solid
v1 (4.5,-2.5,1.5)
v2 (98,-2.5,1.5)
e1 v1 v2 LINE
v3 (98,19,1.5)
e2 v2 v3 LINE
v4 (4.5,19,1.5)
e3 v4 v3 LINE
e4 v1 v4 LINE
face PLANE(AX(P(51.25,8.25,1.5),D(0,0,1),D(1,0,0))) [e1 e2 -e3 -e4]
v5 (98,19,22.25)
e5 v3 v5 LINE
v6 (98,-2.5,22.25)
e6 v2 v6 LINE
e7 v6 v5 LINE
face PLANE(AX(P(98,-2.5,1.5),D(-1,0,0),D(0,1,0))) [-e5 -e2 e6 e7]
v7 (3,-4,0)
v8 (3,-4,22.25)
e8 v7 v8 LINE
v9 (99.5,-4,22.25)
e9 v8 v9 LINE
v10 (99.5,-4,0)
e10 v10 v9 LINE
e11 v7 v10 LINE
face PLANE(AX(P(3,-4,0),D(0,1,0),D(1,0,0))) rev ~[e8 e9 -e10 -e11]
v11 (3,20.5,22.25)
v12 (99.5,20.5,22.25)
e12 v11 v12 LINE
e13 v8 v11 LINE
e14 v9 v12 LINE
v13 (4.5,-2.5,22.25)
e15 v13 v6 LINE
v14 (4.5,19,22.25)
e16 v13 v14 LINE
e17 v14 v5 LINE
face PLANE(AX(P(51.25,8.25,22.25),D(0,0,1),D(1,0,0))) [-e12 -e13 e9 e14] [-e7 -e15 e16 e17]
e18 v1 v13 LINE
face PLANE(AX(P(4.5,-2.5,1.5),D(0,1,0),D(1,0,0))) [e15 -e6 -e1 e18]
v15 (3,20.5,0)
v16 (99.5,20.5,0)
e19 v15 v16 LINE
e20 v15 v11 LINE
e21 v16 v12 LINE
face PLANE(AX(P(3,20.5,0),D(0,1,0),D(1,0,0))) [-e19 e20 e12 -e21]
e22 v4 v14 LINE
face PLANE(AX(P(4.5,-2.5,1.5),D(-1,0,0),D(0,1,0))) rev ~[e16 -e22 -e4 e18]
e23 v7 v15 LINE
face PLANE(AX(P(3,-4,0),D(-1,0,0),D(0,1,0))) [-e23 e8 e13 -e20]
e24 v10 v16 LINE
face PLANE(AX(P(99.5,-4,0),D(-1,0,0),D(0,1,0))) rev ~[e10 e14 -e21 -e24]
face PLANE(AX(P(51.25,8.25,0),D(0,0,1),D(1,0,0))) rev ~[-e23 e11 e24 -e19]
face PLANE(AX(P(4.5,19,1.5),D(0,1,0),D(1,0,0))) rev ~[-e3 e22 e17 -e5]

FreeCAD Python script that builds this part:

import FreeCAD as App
import Part
import Sketcher

V = App.Vector

doc = App.newDocument("Part")
body = doc.addObject("PartDesign::Body", "Body")

# Sketch on XY plane
sketch1 = body.newObject("Sketcher::SketchObject", "Sketch")
sketch1.AttachmentSupport = (doc.getObject("XY_Plane"), [""])
sketch1.MapMode = "FlatFace"
sketch1.AttachmentOffset = App.Placement(V(0, 0, 1.5), App.Rotation())
sketch1.addGeometry([
    Part.LineSegment(V(2, 23, 0), V(2, 2, 0)),
    Part.LineSegment(V(2, 2, 0), V(95, 2, 0)),
    Part.LineSegment(V(95, 2, 0), V(95, 23, 0)),
    Part.LineSegment(V(95, 23, 0), V(2, 23, 0)),
], False)
sketch1.addConstraint([
    Sketcher.Constraint("Coincident", 0, 2, 1, 1),
    Sketcher.Constraint("Coincident", 1, 2, 2, 1),
    Sketcher.Constraint("Coincident", 2, 2, 3, 1),
    Sketcher.Constraint("Coincident", 3, 2, 0, 1),
    Sketcher.Constraint("Vertical", 0),
    Sketcher.Constraint("Horizontal", 1),
    Sketcher.Constraint("Vertical", 2),
    Sketcher.Constraint("Horizontal", 3),
    Sketcher.Constraint("DistanceX", 1, 1, 1, 2, 93.5),
    Sketcher.Constraint("DistanceY", 0, 2, 0, 1, 21.5),
    Sketcher.Constraint("DistanceX", -1, 1, 1, 2, 95.0),
    Sketcher.Constraint("DistanceY", -1, 1, 2, 2, 23.0),
])
pad1 = body.newObject("PartDesign::Pad", "Pad")
pad1.Profile = sketch1
pad1.Length = 20.75
body2 = doc.addObject("PartDesign::Body", "Body001")

# Sketch on XY plane
sketch2 = body2.newObject("Sketcher::SketchObject", "Sketch001")
sketch2.AttachmentSupport = (doc.getObject("XY_Plane001"), [""])
sketch2.MapMode = "FlatFace"
sketch2.addGeometry([
    Part.LineSegment(V(0, 24, 0), V(0, 0, 0)),
    Part.LineSegment(V(0, 0, 0), V(96, 0, 0)),
    Part.LineSegment(V(96, 0, 0), V(96, 24, 0)),
    Part.LineSegment(V(96, 24, 0), V(0, 24, 0)),
], False)
sketch2.addConstraint([
    Sketcher.Constraint("Coincident", 0, 2, 1, 1),
    Sketcher.Constraint("Coincident", 1, 2, 2, 1),
    Sketcher.Constraint("Coincident", 2, 2, 3, 1),
    Sketcher.Constraint("Coincident", 3, 2, 0, 1),
    Sketcher.Constraint("Vertical", 0),
    Sketcher.Constraint("Horizontal", 1),
    Sketcher.Constraint("Vertical", 2),
    Sketcher.Constraint("Horizontal", 3),
    Sketcher.Constraint("Coincident", 0, 2, -1, 1),
    Sketcher.Constraint("DistanceX", 1, 1, 1, 2, 96.5),
    Sketcher.Constraint("DistanceY", 0, 2, 0, 1, 24.5),
])
pad2 = body2.newObject("PartDesign::Pad", "Pad001")
pad2.Profile = sketch2
pad2.Length = 22.25
doc.recompute()

boolean = body2.newObject("PartDesign::Boolean", "Boolean")
boolean.Type = "Cut"
boolean.addObjects([body])
body3 = doc.addObject("PartDesign::Body", "Body002")
doc.recompute()

body2.Placement = App.Placement(V(3, -4, 0), App.Rotation(V(0, 0, 1), 0))
boolean2 = body3.newObject("PartDesign::Boolean", "Boolean001")
boolean2.Type = "Fuse"
boolean2.addObjects([body2])

doc.recompute()
